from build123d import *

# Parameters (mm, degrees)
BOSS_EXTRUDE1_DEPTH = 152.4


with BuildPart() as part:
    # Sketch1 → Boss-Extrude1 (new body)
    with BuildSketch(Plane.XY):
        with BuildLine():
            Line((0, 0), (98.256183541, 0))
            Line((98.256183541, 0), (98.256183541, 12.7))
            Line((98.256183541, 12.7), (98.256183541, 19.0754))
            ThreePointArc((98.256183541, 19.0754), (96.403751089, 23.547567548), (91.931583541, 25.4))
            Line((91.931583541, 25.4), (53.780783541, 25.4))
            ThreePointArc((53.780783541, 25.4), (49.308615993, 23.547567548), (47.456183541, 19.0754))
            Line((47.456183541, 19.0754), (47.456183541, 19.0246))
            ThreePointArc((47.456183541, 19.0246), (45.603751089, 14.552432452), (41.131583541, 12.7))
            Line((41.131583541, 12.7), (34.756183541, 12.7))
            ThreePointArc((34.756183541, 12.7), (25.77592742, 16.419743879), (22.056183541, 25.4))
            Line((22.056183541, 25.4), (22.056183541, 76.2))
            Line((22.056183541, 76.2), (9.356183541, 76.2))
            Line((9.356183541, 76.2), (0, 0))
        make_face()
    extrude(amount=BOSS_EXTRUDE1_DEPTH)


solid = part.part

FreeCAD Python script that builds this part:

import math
import FreeCAD as App
import Part
import Sketcher
from FreeCAD import Vector
Q = App.Units.Quantity

doc = App.newDocument("Part")
body = doc.addObject("PartDesign::Body", "Body")

# Sketch on XY plane
sketch1 = doc.addObject("Sketcher::SketchObject", "Sketch")
body.addObject(sketch1)
sketch1.AttachmentSupport = (doc.XY_Plane, [""])
sketch1.MapMode = "FlatFace"
sketch1.addGeometry([
    Part.LineSegment(Vector(0, 0, 0), Vector(98.256184, 0, 0)),  # 0
    Part.LineSegment(Vector(98.256184, 0, 0), Vector(98.256184, 19.0754, 0)),  # 1
    Part.ArcOfCircle(Part.Circle(Vector(91.931584, 19.0754, 0), Vector(0, 0, 1), 6.3246), math.radians(0), math.radians(90)),  # 2
    Part.LineSegment(Vector(91.931584, 25.4, 0), Vector(53.780784, 25.4, 0)),  # 3
    Part.ArcOfCircle(Part.Circle(Vector(53.780784, 19.0754, 0), Vector(0, 0, 1), 6.3246), math.radians(90), math.radians(180)),  # 4
    Part.LineSegment(Vector(47.456184, 19.0754, 0), Vector(47.456184, 19.0246, 0)),  # 5
    Part.ArcOfCircle(Part.Circle(Vector(41.131584, 19.0246, 0), Vector(0, 0, 1), 6.3246), math.radians(-90), math.radians(0)),  # 6
    Part.LineSegment(Vector(41.131584, 12.7, 0), Vector(34.756184, 12.7, 0)),  # 7
    Part.ArcOfCircle(Part.Circle(Vector(34.756184, 25.4, 0), Vector(0, 0, 1), 12.7), math.radians(180), math.radians(270)),  # 8
    Part.LineSegment(Vector(22.056184, 25.4, 0), Vector(22.056184, 76.2, 0)),  # 9
    Part.LineSegment(Vector(22.056184, 76.2, 0), Vector(9.356184, 76.2, 0)),  # 10
    Part.LineSegment(Vector(9.356184, 76.2, 0), Vector(0, 0, 0)),  # 11
], False)
sketch1.addConstraint([
    Sketcher.Constraint("Coincident", 0, 2, 1, 1),
    Sketcher.Constraint("Tangent", 1, 2, 2, 1),
    Sketcher.Constraint("Tangent", 2, 2, 3, 1),
    Sketcher.Constraint("Tangent", 3, 2, 4, 1),
    Sketcher.Constraint("Tangent", 4, 2, 5, 1),
    Sketcher.Constraint("Tangent", 5, 2, 6, 2),
    Sketcher.Constraint("Tangent", 6, 1, 7, 1),
    Sketcher.Constraint("Tangent", 7, 2, 8, 2),
    Sketcher.Constraint("Tangent", 8, 1, 9, 1),
    Sketcher.Constraint("Coincident", 9, 2, 10, 1),
    Sketcher.Constraint("Coincident", 10, 2, 11, 1),
    Sketcher.Constraint("Coincident", 11, 2, 0, 1),
    Sketcher.Constraint("Horizontal", 0),
    Sketcher.Constraint("Vertical", 1),
    Sketcher.Constraint("Horizontal", 3),
    Sketcher.Constraint("Vertical", 5),
    Sketcher.Constraint("Horizontal", 7),
    Sketcher.Constraint("Vertical", 9),
    Sketcher.Constraint("Horizontal", 10),
    Sketcher.Constraint("Coincident", 11, 2, -1, 1),
    Sketcher.Constraint("Equal", 2, 4),
    Sketcher.Constraint("Equal", 4, 6),
    Sketcher.Constraint("Horizontal", 8, 3, 2, 2),
    Sketcher.Constraint("Radius", 8, Q("0.5 in")),
    Sketcher.Constraint("DistanceY", 9, 1, 9, 2, Q("2 in")),
    Sketcher.Constraint("DistanceX", 10, 2, 10, 1, Q("0.5 in")),
    Sketcher.Constraint("DistanceY", -1, 1, 8, 3, Q("1 in")),
    Sketcher.Constraint("Angle", 11, Q("-97 deg")),
    Sketcher.Constraint("Radius", 2, Q("0.249 in")),
    Sketcher.Constraint("DistanceX", 6, 3, 2, 3, Q("2 in")),
    Sketcher.Constraint("DistanceX", 8, 1, 4, 2, Q("1 in")),
])
pad1 = doc.addObject("PartDesign::Pad", "Pad")
body.addObject(pad1)
pad1.Profile = sketch1
pad1.Length = Q("6 in")

doc.recompute()
